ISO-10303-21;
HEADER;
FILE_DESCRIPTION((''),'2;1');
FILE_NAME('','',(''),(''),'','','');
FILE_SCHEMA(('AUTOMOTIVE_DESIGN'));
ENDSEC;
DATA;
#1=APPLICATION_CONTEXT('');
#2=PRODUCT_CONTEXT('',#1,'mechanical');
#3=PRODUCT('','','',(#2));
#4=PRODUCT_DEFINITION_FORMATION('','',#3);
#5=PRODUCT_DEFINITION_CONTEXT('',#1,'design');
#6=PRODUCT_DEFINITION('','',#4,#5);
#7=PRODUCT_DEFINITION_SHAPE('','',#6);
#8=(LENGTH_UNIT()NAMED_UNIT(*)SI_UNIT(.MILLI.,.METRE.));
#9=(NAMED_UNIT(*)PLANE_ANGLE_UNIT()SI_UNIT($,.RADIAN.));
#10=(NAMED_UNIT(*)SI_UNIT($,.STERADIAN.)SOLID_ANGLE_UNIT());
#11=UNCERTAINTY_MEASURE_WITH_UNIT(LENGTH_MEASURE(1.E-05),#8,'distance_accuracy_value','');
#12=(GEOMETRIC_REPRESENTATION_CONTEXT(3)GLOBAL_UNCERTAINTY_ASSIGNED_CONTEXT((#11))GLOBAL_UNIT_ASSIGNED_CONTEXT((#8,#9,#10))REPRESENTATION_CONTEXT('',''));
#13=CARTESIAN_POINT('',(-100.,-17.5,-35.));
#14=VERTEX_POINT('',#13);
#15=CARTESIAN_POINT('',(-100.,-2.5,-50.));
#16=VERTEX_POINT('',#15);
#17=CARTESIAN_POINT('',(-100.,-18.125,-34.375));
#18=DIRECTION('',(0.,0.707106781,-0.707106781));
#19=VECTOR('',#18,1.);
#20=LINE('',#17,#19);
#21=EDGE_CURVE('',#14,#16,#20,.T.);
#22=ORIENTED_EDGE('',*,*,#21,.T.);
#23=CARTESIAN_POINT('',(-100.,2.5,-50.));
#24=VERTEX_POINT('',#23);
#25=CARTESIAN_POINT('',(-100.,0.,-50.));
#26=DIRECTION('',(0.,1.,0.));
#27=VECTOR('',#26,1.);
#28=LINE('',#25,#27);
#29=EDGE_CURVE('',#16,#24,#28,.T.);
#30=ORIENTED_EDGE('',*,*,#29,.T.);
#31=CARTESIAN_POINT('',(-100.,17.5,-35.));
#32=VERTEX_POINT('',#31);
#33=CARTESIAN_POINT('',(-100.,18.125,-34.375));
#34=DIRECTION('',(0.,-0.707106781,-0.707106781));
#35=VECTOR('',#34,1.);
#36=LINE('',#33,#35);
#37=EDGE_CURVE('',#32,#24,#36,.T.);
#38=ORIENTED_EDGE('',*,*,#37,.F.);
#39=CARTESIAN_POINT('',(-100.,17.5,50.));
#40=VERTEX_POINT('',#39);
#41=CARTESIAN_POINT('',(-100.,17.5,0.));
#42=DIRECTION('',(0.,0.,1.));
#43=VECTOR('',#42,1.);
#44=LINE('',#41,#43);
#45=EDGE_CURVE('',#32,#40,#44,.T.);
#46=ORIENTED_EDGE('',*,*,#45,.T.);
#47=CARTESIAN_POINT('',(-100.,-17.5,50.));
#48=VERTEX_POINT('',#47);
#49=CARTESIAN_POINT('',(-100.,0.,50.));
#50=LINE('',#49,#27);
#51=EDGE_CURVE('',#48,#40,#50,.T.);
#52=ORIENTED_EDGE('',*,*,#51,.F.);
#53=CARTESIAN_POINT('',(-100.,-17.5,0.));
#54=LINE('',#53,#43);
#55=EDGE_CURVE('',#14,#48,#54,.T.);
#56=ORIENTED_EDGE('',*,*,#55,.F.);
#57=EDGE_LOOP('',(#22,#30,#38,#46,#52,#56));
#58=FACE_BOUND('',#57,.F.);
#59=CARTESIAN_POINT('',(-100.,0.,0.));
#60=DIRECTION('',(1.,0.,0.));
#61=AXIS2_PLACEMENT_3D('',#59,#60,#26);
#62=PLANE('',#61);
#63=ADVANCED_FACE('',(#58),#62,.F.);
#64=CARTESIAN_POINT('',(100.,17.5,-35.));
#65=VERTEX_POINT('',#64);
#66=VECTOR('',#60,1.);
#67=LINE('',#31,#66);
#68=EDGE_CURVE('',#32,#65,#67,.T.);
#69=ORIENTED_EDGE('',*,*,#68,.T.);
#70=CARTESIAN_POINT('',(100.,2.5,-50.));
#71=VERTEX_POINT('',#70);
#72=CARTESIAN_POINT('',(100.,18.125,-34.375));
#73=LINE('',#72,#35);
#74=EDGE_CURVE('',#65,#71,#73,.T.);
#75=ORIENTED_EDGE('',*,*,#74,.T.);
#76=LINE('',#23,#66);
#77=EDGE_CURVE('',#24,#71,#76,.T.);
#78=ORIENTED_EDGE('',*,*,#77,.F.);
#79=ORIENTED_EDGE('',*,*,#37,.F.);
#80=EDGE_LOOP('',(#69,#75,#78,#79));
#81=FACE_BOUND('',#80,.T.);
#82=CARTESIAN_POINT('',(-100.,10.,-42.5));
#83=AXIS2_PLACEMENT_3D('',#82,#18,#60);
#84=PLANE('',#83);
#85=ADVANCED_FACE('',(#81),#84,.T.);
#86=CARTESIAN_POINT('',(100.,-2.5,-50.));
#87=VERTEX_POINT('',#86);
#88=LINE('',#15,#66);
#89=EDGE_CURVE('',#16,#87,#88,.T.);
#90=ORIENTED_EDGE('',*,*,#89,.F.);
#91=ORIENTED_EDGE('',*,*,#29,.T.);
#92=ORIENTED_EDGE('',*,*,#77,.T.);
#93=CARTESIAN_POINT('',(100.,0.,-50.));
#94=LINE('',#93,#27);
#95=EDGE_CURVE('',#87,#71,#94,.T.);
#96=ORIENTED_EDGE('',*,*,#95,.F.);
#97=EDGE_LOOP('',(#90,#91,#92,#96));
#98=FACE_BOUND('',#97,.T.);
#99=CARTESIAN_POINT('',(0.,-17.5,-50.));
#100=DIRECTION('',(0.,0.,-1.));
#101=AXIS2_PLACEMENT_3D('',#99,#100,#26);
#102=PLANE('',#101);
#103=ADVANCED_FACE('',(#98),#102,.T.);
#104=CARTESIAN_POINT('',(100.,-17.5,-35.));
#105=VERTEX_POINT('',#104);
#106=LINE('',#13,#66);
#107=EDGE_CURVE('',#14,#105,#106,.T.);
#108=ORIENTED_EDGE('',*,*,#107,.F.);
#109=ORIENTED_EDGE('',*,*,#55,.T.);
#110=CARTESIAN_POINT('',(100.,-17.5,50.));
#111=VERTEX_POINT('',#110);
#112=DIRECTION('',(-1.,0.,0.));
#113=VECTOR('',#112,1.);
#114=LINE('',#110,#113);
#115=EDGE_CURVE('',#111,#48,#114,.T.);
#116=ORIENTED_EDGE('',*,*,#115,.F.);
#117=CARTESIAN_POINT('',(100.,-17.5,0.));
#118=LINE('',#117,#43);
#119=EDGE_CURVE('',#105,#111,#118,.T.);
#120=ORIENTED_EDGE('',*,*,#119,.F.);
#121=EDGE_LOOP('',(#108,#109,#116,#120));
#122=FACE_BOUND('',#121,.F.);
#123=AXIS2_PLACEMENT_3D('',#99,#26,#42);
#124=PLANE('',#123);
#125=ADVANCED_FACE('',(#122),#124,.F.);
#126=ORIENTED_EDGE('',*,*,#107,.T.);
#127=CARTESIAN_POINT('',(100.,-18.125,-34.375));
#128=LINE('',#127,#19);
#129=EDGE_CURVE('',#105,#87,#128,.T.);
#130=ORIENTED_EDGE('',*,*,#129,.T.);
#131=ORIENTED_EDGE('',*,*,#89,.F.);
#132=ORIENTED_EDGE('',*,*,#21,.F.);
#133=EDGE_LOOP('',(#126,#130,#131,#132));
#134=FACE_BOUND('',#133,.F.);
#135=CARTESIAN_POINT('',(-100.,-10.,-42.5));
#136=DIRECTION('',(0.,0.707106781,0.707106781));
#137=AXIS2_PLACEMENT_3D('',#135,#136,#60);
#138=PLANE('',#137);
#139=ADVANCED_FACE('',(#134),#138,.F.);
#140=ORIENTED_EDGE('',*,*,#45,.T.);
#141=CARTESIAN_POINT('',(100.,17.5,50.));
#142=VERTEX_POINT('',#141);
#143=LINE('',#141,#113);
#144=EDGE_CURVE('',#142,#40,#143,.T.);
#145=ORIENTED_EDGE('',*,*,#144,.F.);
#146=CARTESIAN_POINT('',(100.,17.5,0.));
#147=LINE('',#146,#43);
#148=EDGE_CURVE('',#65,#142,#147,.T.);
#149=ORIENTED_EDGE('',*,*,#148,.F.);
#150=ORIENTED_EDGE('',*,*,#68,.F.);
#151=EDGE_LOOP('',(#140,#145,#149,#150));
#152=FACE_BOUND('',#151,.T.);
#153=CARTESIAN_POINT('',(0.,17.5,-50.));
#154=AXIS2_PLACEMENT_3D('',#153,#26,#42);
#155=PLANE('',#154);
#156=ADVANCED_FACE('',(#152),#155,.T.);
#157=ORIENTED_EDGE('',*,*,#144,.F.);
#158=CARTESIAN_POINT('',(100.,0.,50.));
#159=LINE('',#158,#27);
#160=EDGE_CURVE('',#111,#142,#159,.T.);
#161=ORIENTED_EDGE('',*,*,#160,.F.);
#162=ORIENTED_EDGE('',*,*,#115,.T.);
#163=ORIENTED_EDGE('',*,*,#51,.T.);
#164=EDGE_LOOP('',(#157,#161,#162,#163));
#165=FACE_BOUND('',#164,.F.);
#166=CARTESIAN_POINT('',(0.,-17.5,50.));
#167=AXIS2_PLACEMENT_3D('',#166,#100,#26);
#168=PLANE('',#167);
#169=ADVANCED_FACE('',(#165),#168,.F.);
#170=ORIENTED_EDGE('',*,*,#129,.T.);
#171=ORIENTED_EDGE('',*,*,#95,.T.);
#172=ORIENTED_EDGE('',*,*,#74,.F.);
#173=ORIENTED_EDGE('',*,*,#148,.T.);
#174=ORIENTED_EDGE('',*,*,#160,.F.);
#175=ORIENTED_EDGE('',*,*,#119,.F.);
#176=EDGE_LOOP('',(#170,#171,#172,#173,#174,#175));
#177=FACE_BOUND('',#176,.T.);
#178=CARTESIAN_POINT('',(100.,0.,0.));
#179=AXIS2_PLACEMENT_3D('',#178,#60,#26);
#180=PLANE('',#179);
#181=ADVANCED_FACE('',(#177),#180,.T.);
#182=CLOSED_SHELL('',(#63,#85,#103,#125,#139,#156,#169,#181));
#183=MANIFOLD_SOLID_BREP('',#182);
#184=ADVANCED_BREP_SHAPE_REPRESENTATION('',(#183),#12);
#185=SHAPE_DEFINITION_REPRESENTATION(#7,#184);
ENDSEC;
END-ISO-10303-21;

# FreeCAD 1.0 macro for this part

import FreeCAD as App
import Part
import Sketcher
from FreeCAD import Vector


def edges_at(feature, points):
    """Names of the edges that pass closest to the given points."""
    edges = feature.Shape.Edges
    near = lambda p: min(range(len(edges)), key=lambda i: edges[i].distToShape(Part.Vertex(*p))[0])
    return sorted({f"Edge{near(p) + 1}" for p in points})


def add_polygon(sketch, points):
    """Adds a closed chain of lines whose ends are joined by coincident constraints."""
    first, n = sketch.GeometryCount, len(points)
    for a, b in zip(points, points[1:] + points[:1]):
        sketch.addGeometry(Part.LineSegment(App.Vector(*a, 0), App.Vector(*b, 0)), False)
    for i in range(n):
        sketch.addConstraint(Sketcher.Constraint("Coincident", first + i, 2, first + (i + 1) % n, 1))

doc = App.newDocument("Part")
params = doc.addObject("Spreadsheet::Sheet", "Params")
for row, (alias, value) in enumerate([
    ("sketch1_width", "35 mm"),
    ("sketch1_height", "100 mm"),
    ("pad1_length", "200 mm"),
    ("chamfer_size", "15 mm"),
], start=1):
    params.set(f"A{row}", alias)
    params.set(f"B{row}", "=" + value)
    params.setAlias(f"B{row}", alias)

body = doc.addObject("PartDesign::Body", "Body")

# Sketch on YZ plane
sketch1 = body.newObject("Sketcher::SketchObject", "Sketch")
sketch1.AttachmentSupport = (doc.getObject("YZ_Plane"), [""])
sketch1.MapMode = "FlatFace"
add_polygon(sketch1, [(-17.5, 50), (-17.5, -50), (17.5, -50), (17.5, 50)])  # lines 0-3
sketch1.addConstraint([
    Sketcher.Constraint("Vertical", 0),
    Sketcher.Constraint("Horizontal", 1),
    Sketcher.Constraint("Vertical", 2),
    Sketcher.Constraint("Horizontal", 3),
    Sketcher.Constraint("Symmetric", 0, 2, 2, 2, -1, 1),
    Sketcher.Constraint("DistanceX", 1, 1, 1, 2, 35.0),
    Sketcher.Constraint("DistanceY", 0, 2, 0, 1, 100.0),
])
sketch1.setExpression("Constraints[9]", "Params.sketch1_width")
sketch1.setExpression("Constraints[10]", "Params.sketch1_height")
pad1 = body.newObject("PartDesign::Pad", "Pad")
pad1.Profile = sketch1
pad1.setExpression("Length", "Params.pad1_length")
pad1.Midplane = True
doc.recompute()

chamfer = body.newObject("PartDesign::Chamfer", "Chamfer")
chamfer.Base = (pad1, edges_at(pad1, [(0, -17.5, -50), (0, 17.5, -50)]))
chamfer.setExpression("Size", "Params.chamfer_size")

doc.recompute()
